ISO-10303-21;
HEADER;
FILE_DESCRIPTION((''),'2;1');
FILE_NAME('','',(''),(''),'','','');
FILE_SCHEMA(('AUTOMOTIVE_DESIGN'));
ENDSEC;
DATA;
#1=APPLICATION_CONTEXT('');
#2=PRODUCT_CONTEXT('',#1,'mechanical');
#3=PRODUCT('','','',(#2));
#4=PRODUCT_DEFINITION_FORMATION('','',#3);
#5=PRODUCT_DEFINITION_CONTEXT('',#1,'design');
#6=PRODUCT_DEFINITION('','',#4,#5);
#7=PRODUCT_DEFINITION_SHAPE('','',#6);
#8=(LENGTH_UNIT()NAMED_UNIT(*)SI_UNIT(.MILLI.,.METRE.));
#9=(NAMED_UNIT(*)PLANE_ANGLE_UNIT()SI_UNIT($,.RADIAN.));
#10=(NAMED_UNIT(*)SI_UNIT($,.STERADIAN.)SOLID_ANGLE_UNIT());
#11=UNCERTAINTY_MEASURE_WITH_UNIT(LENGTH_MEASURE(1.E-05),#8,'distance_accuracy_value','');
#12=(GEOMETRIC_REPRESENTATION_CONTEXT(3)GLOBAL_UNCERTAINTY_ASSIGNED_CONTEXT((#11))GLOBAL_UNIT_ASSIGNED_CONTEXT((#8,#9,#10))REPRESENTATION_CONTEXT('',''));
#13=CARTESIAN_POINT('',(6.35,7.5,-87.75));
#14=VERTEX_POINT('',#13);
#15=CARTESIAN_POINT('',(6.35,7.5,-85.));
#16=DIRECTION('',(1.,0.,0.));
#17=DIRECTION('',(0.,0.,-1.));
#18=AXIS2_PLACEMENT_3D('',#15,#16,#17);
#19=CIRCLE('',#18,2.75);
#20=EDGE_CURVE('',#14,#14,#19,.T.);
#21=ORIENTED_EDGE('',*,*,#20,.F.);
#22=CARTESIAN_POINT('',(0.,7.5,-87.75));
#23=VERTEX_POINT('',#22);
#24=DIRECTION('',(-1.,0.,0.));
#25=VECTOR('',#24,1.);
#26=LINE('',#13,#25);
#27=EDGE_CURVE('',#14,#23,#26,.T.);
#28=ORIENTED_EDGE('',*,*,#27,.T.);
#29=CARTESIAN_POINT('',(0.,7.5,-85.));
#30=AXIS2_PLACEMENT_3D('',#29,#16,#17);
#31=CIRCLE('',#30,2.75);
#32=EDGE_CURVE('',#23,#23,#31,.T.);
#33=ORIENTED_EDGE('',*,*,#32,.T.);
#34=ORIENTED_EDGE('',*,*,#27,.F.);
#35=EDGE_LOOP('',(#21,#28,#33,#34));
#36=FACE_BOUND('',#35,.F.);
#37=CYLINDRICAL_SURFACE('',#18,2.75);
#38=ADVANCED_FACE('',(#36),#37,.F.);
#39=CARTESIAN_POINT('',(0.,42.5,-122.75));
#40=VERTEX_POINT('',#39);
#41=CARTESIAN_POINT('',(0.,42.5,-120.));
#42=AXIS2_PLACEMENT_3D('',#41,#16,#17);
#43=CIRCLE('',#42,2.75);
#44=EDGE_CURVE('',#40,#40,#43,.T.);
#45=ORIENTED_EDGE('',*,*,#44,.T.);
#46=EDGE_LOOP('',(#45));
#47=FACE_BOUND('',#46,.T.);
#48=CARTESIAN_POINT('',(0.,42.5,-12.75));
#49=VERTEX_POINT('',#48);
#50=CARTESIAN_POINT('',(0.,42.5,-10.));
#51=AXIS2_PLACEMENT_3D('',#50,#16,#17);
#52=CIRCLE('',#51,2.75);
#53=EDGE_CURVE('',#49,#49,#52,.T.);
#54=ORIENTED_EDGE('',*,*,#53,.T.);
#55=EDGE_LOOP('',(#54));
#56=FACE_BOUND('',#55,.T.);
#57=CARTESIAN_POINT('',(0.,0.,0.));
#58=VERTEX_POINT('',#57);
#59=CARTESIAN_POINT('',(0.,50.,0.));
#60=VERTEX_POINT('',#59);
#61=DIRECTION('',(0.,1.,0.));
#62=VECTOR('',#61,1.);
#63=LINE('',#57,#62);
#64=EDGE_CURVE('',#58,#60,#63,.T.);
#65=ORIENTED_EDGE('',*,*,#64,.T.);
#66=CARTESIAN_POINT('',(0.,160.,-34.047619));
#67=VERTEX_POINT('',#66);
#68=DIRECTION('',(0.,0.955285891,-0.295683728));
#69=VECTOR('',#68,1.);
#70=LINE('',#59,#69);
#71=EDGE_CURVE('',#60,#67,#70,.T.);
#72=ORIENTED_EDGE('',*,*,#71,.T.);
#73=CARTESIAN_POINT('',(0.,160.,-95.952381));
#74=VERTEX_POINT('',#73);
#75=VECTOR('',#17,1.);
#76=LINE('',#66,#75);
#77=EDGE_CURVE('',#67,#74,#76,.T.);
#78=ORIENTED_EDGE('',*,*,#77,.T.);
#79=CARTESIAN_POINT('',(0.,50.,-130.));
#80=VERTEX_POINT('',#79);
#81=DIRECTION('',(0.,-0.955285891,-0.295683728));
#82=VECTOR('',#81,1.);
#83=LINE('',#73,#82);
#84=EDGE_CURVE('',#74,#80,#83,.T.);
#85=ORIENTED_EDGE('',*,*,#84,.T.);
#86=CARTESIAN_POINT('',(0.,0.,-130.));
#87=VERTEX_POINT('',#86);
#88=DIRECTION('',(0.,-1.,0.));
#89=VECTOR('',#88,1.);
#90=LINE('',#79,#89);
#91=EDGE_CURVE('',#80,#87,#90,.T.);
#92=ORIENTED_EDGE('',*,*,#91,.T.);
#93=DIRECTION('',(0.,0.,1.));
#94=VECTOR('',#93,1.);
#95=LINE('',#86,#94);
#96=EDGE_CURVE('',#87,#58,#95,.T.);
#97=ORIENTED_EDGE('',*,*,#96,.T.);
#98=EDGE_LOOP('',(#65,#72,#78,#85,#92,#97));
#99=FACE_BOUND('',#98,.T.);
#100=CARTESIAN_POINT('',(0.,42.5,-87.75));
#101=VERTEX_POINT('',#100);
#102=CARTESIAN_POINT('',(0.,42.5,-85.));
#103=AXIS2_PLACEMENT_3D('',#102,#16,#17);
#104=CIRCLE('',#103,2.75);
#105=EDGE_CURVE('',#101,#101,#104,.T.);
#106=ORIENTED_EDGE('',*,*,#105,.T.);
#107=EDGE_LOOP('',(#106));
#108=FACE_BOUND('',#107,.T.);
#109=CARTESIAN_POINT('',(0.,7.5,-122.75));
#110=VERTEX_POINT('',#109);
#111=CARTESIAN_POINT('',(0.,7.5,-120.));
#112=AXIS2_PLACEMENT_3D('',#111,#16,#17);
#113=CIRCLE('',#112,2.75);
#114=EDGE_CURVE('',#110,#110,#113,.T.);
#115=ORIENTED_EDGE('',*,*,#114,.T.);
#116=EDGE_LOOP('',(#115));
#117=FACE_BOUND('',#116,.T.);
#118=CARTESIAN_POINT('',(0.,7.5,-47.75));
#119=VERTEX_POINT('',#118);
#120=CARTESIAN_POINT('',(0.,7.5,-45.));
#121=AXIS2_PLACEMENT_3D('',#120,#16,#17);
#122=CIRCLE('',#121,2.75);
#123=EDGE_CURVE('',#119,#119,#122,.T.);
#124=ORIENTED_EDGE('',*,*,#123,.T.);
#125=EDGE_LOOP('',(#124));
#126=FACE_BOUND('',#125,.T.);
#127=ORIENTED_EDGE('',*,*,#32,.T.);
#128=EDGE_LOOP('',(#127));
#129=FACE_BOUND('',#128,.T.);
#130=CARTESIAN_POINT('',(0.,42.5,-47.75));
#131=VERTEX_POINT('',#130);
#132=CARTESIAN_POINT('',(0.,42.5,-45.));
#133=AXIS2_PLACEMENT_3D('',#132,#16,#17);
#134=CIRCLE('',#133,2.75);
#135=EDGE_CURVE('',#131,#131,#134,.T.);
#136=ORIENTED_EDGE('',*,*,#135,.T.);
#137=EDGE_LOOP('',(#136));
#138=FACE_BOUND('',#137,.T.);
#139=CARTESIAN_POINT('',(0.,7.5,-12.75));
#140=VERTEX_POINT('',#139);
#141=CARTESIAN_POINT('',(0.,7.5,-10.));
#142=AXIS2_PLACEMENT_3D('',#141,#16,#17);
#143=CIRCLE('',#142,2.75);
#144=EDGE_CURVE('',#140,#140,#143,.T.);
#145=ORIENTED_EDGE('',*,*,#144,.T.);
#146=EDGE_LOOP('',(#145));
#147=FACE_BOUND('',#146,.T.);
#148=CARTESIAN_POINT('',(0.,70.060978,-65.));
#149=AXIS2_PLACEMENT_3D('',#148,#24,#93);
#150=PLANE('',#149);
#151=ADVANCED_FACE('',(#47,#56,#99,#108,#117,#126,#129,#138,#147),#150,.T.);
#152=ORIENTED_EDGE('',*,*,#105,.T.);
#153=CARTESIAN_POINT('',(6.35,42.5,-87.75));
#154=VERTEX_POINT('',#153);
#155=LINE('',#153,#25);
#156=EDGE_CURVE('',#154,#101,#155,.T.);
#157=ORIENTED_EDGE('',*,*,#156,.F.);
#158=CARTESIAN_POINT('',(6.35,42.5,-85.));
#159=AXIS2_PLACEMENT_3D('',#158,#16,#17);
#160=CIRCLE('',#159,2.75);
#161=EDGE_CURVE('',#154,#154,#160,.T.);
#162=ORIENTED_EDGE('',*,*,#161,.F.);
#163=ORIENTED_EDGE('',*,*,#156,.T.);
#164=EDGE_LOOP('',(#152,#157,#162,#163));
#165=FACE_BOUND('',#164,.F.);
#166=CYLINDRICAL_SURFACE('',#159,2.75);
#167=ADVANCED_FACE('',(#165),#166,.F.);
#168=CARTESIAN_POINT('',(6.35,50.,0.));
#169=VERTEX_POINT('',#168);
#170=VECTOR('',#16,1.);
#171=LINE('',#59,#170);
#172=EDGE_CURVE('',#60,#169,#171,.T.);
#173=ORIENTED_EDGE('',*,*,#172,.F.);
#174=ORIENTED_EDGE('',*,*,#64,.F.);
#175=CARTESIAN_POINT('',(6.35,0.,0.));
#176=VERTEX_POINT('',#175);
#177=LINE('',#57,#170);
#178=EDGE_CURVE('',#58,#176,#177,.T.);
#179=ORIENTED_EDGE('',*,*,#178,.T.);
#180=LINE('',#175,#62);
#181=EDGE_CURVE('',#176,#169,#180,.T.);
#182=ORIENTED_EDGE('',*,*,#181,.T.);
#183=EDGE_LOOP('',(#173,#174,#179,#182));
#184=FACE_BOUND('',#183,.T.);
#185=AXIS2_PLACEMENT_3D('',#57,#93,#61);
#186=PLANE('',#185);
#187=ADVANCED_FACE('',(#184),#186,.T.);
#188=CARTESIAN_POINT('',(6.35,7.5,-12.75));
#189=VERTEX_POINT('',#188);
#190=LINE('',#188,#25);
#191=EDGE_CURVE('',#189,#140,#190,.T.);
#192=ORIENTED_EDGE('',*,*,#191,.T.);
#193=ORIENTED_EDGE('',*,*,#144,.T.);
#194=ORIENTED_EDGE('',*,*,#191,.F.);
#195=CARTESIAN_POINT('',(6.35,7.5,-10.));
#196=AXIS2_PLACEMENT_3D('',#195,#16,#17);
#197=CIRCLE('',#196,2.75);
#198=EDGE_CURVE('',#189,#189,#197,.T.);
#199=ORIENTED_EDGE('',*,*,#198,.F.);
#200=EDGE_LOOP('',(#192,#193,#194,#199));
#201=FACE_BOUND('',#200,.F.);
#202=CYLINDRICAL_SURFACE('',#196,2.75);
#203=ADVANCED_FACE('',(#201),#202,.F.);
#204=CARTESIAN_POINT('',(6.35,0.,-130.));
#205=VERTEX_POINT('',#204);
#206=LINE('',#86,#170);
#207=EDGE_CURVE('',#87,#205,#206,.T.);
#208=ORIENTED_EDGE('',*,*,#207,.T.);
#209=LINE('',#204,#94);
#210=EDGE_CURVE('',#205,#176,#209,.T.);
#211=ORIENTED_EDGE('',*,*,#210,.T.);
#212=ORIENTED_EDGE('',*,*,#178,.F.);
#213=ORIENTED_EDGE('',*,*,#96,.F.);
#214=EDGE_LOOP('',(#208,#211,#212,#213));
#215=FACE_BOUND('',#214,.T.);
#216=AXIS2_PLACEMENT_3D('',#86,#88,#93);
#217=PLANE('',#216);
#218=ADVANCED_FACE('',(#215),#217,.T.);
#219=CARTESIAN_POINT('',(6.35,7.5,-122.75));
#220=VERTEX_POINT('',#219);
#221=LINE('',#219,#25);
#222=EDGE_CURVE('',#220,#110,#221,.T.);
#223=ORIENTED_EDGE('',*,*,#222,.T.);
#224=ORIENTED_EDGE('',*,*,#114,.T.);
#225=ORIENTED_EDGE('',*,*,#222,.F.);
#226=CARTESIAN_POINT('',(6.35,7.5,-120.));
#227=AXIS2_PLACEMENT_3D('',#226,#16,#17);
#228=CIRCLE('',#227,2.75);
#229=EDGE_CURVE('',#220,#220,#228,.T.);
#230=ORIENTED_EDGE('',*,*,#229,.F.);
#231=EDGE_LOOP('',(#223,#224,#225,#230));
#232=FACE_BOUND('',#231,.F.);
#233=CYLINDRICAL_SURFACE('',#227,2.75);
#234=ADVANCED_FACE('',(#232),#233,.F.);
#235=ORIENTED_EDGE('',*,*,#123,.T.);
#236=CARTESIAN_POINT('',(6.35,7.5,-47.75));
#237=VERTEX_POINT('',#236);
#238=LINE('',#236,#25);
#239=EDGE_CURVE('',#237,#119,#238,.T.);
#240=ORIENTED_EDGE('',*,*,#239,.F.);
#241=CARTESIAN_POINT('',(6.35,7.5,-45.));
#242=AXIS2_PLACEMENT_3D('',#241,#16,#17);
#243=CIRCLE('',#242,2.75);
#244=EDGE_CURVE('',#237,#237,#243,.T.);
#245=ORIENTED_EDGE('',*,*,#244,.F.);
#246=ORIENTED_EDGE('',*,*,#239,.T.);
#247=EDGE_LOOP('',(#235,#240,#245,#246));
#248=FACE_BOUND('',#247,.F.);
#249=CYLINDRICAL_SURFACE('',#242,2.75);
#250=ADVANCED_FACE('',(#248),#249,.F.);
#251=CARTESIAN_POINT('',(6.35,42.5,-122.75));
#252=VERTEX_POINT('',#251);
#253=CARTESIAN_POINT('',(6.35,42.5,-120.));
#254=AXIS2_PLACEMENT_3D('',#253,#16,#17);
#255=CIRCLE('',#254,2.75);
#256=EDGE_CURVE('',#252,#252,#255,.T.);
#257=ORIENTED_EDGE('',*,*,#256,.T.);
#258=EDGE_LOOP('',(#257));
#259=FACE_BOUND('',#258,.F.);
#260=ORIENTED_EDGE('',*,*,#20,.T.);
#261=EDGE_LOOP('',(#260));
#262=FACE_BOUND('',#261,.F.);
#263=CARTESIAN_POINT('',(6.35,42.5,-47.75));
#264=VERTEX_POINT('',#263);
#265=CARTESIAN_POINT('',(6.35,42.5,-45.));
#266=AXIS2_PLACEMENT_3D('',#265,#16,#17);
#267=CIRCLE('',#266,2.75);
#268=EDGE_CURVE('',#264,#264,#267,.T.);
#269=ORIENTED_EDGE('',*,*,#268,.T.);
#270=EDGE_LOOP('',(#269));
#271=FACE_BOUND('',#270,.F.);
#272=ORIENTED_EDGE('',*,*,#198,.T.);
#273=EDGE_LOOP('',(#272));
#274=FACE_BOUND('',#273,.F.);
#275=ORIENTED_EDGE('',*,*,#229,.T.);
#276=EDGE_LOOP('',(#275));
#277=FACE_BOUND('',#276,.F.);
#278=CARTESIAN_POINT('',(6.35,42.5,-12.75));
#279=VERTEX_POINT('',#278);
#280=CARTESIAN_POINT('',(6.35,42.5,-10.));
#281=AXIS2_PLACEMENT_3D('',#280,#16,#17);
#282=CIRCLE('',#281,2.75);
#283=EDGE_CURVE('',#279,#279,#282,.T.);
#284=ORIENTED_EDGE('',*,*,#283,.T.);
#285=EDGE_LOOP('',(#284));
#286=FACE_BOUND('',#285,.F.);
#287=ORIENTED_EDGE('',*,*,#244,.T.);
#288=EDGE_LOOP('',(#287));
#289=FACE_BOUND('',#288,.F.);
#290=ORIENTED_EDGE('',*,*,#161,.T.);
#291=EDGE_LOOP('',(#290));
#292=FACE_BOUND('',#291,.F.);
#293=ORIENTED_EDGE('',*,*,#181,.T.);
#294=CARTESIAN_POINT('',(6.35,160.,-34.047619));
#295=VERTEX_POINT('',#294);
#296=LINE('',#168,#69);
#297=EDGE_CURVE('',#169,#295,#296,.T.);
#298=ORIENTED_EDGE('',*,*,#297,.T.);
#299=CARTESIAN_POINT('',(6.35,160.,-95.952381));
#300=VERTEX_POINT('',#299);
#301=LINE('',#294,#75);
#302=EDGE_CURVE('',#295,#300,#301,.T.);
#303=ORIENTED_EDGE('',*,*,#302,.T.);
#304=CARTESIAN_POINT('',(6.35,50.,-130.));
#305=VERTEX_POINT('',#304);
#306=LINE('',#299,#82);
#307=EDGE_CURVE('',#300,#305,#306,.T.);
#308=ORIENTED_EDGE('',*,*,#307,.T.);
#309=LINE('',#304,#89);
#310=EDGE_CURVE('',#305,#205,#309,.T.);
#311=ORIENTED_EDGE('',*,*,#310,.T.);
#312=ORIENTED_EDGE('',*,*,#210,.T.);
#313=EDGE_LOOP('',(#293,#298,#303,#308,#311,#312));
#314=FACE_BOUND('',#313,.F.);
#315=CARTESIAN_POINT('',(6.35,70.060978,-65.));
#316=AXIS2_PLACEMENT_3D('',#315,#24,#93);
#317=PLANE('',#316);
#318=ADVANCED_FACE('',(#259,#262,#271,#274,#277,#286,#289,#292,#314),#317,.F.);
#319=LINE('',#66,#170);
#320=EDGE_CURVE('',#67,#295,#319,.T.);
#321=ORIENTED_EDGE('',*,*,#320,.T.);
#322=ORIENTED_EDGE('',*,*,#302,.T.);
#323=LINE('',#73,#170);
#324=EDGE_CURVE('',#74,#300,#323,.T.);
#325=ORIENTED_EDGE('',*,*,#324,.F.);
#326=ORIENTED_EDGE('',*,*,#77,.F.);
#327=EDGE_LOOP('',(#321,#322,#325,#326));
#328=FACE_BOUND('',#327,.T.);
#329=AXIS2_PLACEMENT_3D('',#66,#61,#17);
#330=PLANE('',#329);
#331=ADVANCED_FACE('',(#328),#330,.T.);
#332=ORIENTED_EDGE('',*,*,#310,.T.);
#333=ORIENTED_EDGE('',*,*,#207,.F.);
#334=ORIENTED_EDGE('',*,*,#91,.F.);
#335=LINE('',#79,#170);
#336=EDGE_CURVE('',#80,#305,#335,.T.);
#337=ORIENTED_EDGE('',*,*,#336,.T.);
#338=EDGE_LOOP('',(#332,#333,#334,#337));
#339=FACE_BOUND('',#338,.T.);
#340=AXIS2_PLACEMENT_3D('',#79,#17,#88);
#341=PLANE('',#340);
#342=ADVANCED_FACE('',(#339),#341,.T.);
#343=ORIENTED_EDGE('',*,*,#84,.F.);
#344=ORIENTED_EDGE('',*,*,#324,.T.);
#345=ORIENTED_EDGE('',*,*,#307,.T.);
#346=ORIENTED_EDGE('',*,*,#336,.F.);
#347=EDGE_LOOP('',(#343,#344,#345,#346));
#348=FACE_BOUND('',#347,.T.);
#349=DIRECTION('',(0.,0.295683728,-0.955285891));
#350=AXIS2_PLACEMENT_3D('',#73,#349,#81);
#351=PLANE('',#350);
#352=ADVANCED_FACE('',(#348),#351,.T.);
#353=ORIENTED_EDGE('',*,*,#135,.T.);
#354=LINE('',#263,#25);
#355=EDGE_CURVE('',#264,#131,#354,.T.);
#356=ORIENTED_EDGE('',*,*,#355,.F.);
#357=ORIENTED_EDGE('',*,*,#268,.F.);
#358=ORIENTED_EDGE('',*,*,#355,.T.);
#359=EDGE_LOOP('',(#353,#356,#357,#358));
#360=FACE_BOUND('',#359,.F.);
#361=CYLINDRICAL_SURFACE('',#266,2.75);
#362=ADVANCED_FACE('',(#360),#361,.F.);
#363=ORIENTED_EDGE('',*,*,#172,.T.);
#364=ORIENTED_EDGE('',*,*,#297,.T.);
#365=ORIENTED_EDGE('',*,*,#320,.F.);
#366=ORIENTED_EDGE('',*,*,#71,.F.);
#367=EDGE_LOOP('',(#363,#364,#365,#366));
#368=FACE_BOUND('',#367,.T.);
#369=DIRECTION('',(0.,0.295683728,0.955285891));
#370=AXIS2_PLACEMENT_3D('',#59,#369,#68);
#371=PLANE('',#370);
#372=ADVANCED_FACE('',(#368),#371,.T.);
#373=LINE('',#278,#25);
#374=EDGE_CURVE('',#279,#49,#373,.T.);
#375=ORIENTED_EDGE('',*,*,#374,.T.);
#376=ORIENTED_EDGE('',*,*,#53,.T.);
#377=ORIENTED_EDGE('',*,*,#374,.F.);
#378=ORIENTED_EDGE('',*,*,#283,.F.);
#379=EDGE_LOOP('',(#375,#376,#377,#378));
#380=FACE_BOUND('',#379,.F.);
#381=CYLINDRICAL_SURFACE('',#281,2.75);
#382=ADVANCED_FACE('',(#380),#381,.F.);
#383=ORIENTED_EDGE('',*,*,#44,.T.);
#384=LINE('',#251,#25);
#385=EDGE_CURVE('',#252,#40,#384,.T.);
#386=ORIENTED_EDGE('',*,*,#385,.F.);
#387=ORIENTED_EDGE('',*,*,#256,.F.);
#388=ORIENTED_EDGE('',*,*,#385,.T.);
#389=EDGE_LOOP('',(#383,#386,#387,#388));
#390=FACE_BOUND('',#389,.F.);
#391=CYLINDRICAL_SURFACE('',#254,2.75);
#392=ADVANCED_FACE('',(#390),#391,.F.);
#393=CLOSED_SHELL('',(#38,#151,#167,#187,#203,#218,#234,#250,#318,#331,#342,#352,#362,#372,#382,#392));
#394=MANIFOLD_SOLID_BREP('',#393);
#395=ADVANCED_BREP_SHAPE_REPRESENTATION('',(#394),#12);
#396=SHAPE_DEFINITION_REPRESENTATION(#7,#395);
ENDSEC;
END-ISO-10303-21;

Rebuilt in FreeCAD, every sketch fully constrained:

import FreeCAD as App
import Part
import Sketcher

V = App.Vector

doc = App.newDocument("Part")
body = doc.addObject("PartDesign::Body", "Body")

sketch1 = doc.addObject("Sketcher::SketchObject", "Sketch")
body.addObject(sketch1)
sketch1.AttachmentSupport = (doc.YZ_Plane, [""])
sketch1.MapMode = "FlatFace"
sketch1.addGeometry([
    Part.LineSegment(V(160, -96, 0), V(160, -34, 0)),
    Part.LineSegment(V(160, -34, 0), V(50, 0, 0)),
    Part.LineSegment(V(50, 0, 0), V(0, 0, 0)),
    Part.LineSegment(V(0, 0, 0), V(0, -130, 0)),
    Part.LineSegment(V(0, -130, 0), V(50, -130, 0)),
    Part.LineSegment(V(50, -130, 0), V(160, -96, 0)),
], False)
sketch1.addConstraint([
    Sketcher.Constraint("Coincident", 0, 2, 1, 1),
    Sketcher.Constraint("Coincident", 1, 2, 2, 1),
    Sketcher.Constraint("Coincident", 2, 2, 3, 1),
    Sketcher.Constraint("Coincident", 3, 2, 4, 1),
    Sketcher.Constraint("Coincident", 4, 2, 5, 1),
    Sketcher.Constraint("Coincident", 5, 2, 0, 1),
    Sketcher.Constraint("Vertical", 0),
    Sketcher.Constraint("Horizontal", 2),
    Sketcher.Constraint("Vertical", 3),
    Sketcher.Constraint("Horizontal", 4),
    Sketcher.Constraint("Coincident", 2, 2, -1, 1),
    Sketcher.Constraint("Vertical", 1, 2, 4, 2),
    Sketcher.Constraint("Equal", 1, 5),
    Sketcher.Constraint("DistanceX", 2, 2, 2, 1, 50.0),
    Sketcher.Constraint("DistanceY", 3, 2, 3, 1, 130.0),
    Sketcher.Constraint("DistanceX", -1, 1, 0, 2, 160.0),
    Sketcher.Constraint("DistanceY", 0, 1, 0, 2, 61.904762),
])
pad1 = doc.addObject("PartDesign::Pad", "Pad")
body.addObject(pad1)
pad1.Profile = sketch1
pad1.Length = 6.35

sketch2 = doc.addObject("Sketcher::SketchObject", "Sketch001")
body.addObject(sketch2)
sketch2.AttachmentSupport = (doc.YZ_Plane, [""])
sketch2.MapMode = "FlatFace"
sketch2.AttachmentOffset = App.Placement(V(0, 0, 6.35), App.Rotation())
sketch2.addGeometry([
    Part.Circle(V(42.5, -10, 0), V(0, 0, 1), 2.8),
    Part.Circle(V(42.5, -45, 0), V(0, 0, 1), 2.8),
    Part.Circle(V(7.5, -10, 0), V(0, 0, 1), 2.8),
    Part.Circle(V(7.5, -45, 0), V(0, 0, 1), 2.8),
    Part.Circle(V(7.5, -120, 0), V(0, 0, 1), 2.8),
    Part.Circle(V(7.5, -85, 0), V(0, 0, 1), 2.8),
    Part.Circle(V(42.5, -85, 0), V(0, 0, 1), 2.8),
    Part.Circle(V(42.5, -120, 0), V(0, 0, 1), 2.8),
], False)
sketch2.addConstraint([
    Sketcher.Constraint("Equal", 0, 1),
    Sketcher.Constraint("Equal", 1, 2),
    Sketcher.Constraint("Equal", 2, 3),
    Sketcher.Constraint("Equal", 3, 4),
    Sketcher.Constraint("Equal", 4, 5),
    Sketcher.Constraint("Equal", 5, 6),
    Sketcher.Constraint("Equal", 6, 7),
    Sketcher.Constraint("Horizontal", 0, 3, 2, 3),
    Sketcher.Constraint("Horizontal", 1, 3, 3, 3),
    Sketcher.Constraint("Horizontal", 5, 3, 6, 3),
    Sketcher.Constraint("Horizontal", 4, 3, 7, 3),
    Sketcher.Constraint("Vertical", 0, 3, 1, 3),
    Sketcher.Constraint("Vertical", 2, 3, 3, 3),
    Sketcher.Constraint("Vertical", 3, 3, 4, 3),
    Sketcher.Constraint("Vertical", 4, 3, 5, 3),
    Sketcher.Constraint("Vertical", 1, 3, 6, 3),
    Sketcher.Constraint("Vertical", 6, 3, 7, 3),
    Sketcher.Constraint("Diameter", 0, 5.5),
    Sketcher.Constraint("DistanceY", 0, 3, -1, 1, 10.0),
    Sketcher.Constraint("DistanceY", 1, 3, -1, 1, 45.0),
    Sketcher.Constraint("DistanceY", 4, 3, -1, 1, 120.0),
    Sketcher.Constraint("DistanceY", 5, 3, -1, 1, 85.0),
    Sketcher.Constraint("DistanceX", 2, 3, 0, 3, 35.0),
    Sketcher.Constraint("DistanceX", -1, 1, 0, 3, 42.5),
])
pocket1 = doc.addObject("PartDesign::Pocket", "Pocket")
body.addObject(pocket1)
pocket1.Profile = sketch2
pocket1.Type = "ThroughAll"

doc.recompute()
